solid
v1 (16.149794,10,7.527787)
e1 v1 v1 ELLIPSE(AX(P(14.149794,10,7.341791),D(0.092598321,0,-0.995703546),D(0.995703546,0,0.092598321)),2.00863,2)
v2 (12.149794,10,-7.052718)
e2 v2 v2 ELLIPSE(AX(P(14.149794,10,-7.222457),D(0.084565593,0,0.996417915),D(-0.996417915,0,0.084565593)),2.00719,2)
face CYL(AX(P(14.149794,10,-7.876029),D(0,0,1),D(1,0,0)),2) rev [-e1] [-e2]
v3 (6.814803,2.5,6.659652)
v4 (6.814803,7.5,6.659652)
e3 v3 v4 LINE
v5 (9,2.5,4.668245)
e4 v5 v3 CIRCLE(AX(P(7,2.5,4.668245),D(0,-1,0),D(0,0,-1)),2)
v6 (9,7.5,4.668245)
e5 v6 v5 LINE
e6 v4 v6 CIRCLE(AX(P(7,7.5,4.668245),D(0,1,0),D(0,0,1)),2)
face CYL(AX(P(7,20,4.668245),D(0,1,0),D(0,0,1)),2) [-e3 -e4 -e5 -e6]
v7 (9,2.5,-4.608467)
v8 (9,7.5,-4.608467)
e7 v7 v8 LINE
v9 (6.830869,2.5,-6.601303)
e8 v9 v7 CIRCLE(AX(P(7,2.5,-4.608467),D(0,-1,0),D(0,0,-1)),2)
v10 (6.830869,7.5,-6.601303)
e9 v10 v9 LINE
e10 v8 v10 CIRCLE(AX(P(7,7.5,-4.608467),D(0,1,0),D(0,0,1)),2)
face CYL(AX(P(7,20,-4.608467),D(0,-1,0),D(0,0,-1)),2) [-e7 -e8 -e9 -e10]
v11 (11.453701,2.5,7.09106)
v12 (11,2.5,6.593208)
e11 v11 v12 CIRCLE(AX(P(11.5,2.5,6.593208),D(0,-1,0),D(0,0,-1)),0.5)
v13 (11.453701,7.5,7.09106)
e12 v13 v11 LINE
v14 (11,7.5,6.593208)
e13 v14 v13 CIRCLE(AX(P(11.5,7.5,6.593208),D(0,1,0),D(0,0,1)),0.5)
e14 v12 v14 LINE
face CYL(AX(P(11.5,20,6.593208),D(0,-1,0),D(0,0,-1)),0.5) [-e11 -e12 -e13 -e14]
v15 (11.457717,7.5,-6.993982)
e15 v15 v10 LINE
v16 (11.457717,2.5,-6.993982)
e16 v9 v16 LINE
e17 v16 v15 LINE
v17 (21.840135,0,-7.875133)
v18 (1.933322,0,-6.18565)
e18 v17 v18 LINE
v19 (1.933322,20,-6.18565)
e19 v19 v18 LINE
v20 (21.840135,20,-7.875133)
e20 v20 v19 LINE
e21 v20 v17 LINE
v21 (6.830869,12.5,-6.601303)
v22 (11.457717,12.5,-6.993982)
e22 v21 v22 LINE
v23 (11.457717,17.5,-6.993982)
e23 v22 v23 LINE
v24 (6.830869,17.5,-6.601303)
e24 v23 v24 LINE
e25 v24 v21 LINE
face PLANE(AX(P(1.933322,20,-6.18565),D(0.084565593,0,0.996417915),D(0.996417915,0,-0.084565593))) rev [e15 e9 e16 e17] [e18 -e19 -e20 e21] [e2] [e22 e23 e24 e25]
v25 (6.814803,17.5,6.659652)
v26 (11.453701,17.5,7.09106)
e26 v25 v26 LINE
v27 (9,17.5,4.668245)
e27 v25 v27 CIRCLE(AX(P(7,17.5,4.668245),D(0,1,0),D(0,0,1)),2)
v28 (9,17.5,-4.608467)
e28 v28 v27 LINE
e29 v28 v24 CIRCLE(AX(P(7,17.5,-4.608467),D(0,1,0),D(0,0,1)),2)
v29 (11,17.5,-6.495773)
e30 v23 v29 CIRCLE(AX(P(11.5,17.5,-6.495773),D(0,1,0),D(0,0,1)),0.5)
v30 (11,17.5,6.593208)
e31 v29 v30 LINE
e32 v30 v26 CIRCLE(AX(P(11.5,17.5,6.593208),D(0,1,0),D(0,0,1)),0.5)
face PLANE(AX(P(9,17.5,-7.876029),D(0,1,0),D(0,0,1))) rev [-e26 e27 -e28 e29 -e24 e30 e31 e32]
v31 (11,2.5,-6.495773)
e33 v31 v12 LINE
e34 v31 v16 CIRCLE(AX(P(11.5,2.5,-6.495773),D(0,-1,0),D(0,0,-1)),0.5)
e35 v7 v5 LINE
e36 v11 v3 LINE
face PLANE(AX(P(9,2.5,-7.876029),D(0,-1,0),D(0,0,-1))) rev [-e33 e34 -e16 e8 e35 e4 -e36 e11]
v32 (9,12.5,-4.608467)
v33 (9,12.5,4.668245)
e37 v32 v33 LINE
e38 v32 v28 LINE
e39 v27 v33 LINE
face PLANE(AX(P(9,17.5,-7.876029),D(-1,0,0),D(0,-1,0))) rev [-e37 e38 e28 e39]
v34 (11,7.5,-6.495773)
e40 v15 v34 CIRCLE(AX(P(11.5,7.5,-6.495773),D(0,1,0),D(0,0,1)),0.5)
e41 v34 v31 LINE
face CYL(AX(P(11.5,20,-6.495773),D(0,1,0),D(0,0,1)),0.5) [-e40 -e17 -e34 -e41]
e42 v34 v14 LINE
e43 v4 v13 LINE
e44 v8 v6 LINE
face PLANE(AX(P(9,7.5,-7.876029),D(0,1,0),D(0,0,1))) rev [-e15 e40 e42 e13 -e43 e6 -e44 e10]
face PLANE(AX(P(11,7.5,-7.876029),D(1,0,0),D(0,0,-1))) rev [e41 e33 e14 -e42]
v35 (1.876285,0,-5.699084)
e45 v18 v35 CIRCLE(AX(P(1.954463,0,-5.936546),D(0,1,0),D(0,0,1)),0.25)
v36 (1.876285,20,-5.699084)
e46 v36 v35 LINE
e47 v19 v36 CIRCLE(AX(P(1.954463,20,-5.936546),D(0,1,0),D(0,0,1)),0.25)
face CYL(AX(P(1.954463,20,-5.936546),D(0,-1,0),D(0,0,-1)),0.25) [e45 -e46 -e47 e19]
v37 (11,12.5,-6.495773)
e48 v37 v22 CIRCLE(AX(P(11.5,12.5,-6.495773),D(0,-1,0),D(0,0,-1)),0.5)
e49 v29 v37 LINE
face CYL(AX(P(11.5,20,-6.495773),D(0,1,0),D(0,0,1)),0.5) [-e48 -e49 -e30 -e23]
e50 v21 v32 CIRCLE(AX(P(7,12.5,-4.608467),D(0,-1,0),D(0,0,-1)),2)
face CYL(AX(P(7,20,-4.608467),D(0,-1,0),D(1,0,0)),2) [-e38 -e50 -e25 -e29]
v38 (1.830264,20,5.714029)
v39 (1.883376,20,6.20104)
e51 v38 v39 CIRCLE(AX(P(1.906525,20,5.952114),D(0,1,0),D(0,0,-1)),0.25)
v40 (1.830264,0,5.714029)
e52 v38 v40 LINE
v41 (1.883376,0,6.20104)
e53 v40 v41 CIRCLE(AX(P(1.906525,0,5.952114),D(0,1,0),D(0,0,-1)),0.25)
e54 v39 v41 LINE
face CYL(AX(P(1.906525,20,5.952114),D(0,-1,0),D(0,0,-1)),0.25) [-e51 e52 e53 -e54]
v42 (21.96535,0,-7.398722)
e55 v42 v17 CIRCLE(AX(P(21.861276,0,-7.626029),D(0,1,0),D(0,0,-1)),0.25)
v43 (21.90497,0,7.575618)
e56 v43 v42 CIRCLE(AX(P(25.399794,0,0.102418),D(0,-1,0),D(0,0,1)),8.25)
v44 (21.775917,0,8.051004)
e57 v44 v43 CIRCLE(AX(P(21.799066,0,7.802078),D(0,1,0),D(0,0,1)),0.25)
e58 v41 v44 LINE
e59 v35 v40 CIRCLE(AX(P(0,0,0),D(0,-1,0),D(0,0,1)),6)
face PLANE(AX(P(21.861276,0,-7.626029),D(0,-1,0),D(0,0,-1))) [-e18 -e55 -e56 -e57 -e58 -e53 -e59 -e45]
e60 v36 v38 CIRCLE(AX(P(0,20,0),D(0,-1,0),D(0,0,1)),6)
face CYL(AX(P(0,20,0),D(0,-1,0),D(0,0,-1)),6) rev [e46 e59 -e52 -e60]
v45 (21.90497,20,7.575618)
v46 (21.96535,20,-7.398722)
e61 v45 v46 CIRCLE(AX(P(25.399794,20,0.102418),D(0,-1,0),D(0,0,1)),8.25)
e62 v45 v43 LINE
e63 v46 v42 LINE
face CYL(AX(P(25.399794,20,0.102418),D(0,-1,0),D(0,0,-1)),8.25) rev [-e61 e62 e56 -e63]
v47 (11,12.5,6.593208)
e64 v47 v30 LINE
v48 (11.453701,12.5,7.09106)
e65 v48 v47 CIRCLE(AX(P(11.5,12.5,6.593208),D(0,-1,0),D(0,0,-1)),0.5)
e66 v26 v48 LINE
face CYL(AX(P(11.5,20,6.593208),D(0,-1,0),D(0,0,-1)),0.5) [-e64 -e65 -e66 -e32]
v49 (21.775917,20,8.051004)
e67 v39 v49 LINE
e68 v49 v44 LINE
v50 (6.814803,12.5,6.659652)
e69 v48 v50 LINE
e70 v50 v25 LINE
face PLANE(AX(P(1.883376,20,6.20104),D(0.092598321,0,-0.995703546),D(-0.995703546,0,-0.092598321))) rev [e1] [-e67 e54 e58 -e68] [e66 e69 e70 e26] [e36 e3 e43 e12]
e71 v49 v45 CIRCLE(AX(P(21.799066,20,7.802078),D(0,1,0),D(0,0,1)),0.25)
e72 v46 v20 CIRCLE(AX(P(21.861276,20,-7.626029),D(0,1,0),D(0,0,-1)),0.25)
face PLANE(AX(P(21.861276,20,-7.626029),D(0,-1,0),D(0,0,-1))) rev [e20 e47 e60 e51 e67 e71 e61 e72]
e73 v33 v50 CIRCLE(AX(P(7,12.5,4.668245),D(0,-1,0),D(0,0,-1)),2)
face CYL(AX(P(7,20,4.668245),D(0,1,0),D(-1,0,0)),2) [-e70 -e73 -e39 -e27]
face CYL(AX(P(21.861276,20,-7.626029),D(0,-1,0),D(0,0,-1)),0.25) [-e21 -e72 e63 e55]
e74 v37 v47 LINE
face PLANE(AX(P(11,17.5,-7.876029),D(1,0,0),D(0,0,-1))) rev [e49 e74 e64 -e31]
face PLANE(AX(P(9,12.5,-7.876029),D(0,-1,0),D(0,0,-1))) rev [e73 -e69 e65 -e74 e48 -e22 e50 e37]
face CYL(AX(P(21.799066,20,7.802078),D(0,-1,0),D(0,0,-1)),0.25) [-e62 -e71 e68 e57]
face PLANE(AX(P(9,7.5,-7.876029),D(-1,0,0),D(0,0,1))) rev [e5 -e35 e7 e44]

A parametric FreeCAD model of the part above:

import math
import FreeCAD as App
import Part
import Sketcher


def edges_at(feature, points):
    """Names of the edges that pass closest to the given points."""
    edges = feature.Shape.Edges
    near = lambda p: min(range(len(edges)), key=lambda i: edges[i].distToShape(Part.Vertex(*p))[0])
    return sorted({f"Edge{near(p) + 1}" for p in points})


def add_polygon(sketch, points):
    """Adds a closed chain of lines whose ends are joined by coincident constraints."""
    first, n = sketch.GeometryCount, len(points)
    for a, b in zip(points, points[1:] + points[:1]):
        sketch.addGeometry(Part.LineSegment(App.Vector(*a, 0), App.Vector(*b, 0)), False)
    for i in range(n):
        sketch.addConstraint(Sketcher.Constraint("Coincident", first + i, 2, first + (i + 1) % n, 1))

doc = App.newDocument("Part")
params = doc.addObject("Spreadsheet::Sheet", "Params")
for row, (alias, value) in enumerate([
    ("sketch1_radius", "6 mm"),
    ("sketch1_radius2", "0.25 mm"),
    ("sketch1_radius3", "0.25 mm"),
    ("sketch1_radius4", "0.25 mm"),
    ("sketch1_radius5", "8.25 mm"),
    ("pad1_length", "20 mm"),
    ("sketch2_diameter", "4 mm"),
    ("sketch2_width", "2 mm"),
    ("sketch2_height", "5 mm"),
    ("fillet_radius", "2 mm"),
    ("fillet2_radius", "0.5 mm"),
], start=1):
    params.set(f"A{row}", alias)
    params.set(f"B{row}", "=" + value)
    params.setAlias(f"B{row}", alias)

body = doc.addObject("PartDesign::Body", "Body")

# Sketch on XZ plane
sketch1 = body.newObject("Sketcher::SketchObject", "Sketch")
sketch1.AttachmentSupport = (doc.getObject("XZ_Plane"), [""])
sketch1.MapMode = "FlatFace"
sketch1.addGeometry(Part.LineSegment(App.Vector(21.840135, -7.875133, 0), App.Vector(1.933322, -6.18565, 0)), False)
sketch1.addGeometry(Part.ArcOfCircle(Part.Circle(App.Vector(1.954463, -5.936546, 0), App.Vector(0, 0, 1), 0.25), math.radians(108.222873), math.radians(265.148955)), False)
sketch1.addGeometry(Part.ArcOfCircle(Part.Circle(App.Vector(0, 0, 0), App.Vector(0, 0, 1), 6), math.radians(-71.777127), math.radians(72.239186)), False)
sketch1.addGeometry(Part.ArcOfCircle(Part.Circle(App.Vector(1.906525, 5.952114, 0), App.Vector(0, 0, 1), 0.25), math.radians(95.313104), math.radians(252.239186)), False)
sketch1.addGeometry(Part.LineSegment(App.Vector(1.883376, 6.20104, 0), App.Vector(21.775917, 8.051004, 0)), False)
sketch1.addGeometry(Part.ArcOfCircle(Part.Circle(App.Vector(21.799066, 7.802078, 0), App.Vector(0, 0, 1), 0.25), math.radians(-64.936973), math.radians(95.313104)), False)
sketch1.addGeometry(Part.ArcOfCircle(Part.Circle(App.Vector(25.399794, 0.102418, 0), App.Vector(0, 0, 1), 8.25), math.radians(115.063027), math.radians(245.399032)), False)
sketch1.addGeometry(Part.ArcOfCircle(Part.Circle(App.Vector(21.861276, -7.626029, 0), App.Vector(0, 0, 1), 0.25), math.radians(-94.851045), math.radians(65.399032)), False)
sketch1.addConstraint(Sketcher.Constraint("Coincident", 0, 2, 1, 2))
sketch1.addConstraint(Sketcher.Constraint("Coincident", 1, 1, 2, 1))
sketch1.addConstraint(Sketcher.Constraint("Coincident", 2, 2, 3, 2))
sketch1.addConstraint(Sketcher.Constraint("Coincident", 3, 1, 4, 1))
sketch1.addConstraint(Sketcher.Constraint("Coincident", 4, 2, 5, 2))
sketch1.addConstraint(Sketcher.Constraint("Coincident", 5, 1, 6, 1))
sketch1.addConstraint(Sketcher.Constraint("Coincident", 6, 2, 7, 2))
sketch1.addConstraint(Sketcher.Constraint("Coincident", 7, 1, 0, 1))
sketch1.addConstraint(Sketcher.Constraint("Coincident", 2, 3, -1, 1))
sketch1.addConstraint(Sketcher.Constraint("Radius", 2, 6.0))
sketch1.addConstraint(Sketcher.Constraint("Radius", 1, 0.25))
sketch1.addConstraint(Sketcher.Constraint("Radius", 3, 0.25))
sketch1.addConstraint(Sketcher.Constraint("Radius", 5, 0.25))
sketch1.addConstraint(Sketcher.Constraint("Radius", 6, 8.25))
sketch1.addConstraint(Sketcher.Constraint("Radius", 7, 0.25))
sketch1.addConstraint(Sketcher.Constraint("DistanceX", 2, 2, 1, 3, 0.124199))
sketch1.addConstraint(Sketcher.Constraint("DistanceY", 6, 3, 5, 1, 7.473199))
sketch1.addConstraint(Sketcher.Constraint("DistanceY", 6, 2, 5, 3, 15.2008))
sketch1.addConstraint(Sketcher.Constraint("DistanceY", -1, 1, 5, 3, 7.802078))
sketch1.addConstraint(Sketcher.Constraint("DistanceY", -1, 1, 6, 3, 0.102418))
sketch1.addConstraint(Sketcher.Constraint("DistanceY", 7, 3, -1, 1, 7.626029))
sketch1.addConstraint(Sketcher.Constraint("DistanceX", -1, 1, 0, 2, 1.933322))
sketch1.addConstraint(Sketcher.Constraint("DistanceY", 0, 2, -1, 1, 6.18565))
sketch1.addConstraint(Sketcher.Constraint("DistanceY", -1, 1, 3, 1, 6.20104))
sketch1.addConstraint(Sketcher.Constraint("DistanceX", -1, 1, 5, 1, 21.90497))
sketch1.addConstraint(Sketcher.Constraint("DistanceX", 3, 3, 1, 3, 0.047938))
sketch1.addConstraint(Sketcher.Constraint("DistanceX", 1, 1, 1, 3, 0.078179))
sketch1.addConstraint(Sketcher.Constraint("DistanceX", 4, 2, 5, 3, 0.02315))
sketch1.addConstraint(Sketcher.Constraint("DistanceX", 7, 1, 7, 3, 0.021141))
sketch1.setExpression("Constraints[9]", "Params.sketch1_radius")
sketch1.setExpression("Constraints[10]", "Params.sketch1_radius2")
sketch1.setExpression("Constraints[11]", "Params.sketch1_radius3")
sketch1.setExpression("Constraints[12]", "Params.sketch1_radius4")
sketch1.setExpression("Constraints[13]", "Params.sketch1_radius5")
pad1 = body.newObject("PartDesign::Pad", "Pad")
pad1.Profile = sketch1
pad1.setExpression("Length", "Params.pad1_length")
pad1.Reversed = True

# Sketch on XY plane
sketch2 = body.newObject("Sketcher::SketchObject", "Sketch001")
sketch2.AttachmentSupport = (doc.getObject("XY_Plane"), [""])
sketch2.MapMode = "FlatFace"
sketch2.addGeometry(Part.Circle(App.Vector(14.149794, 10, 0), App.Vector(0, 0, 1), 2), False)  # 0
add_polygon(sketch2, [(9, 17.5), (9, 12.5), (11, 12.5), (11, 17.5)])  # lines 1-4
add_polygon(sketch2, [(9, 7.5), (9, 2.5), (11, 2.5), (11, 7.5)])  # lines 5-8
sketch2.addConstraint(Sketcher.Constraint("Vertical", 1))
sketch2.addConstraint(Sketcher.Constraint("Horizontal", 2))
sketch2.addConstraint(Sketcher.Constraint("Vertical", 3))
sketch2.addConstraint(Sketcher.Constraint("Horizontal", 4))
sketch2.addConstraint(Sketcher.Constraint("Vertical", 5))
sketch2.addConstraint(Sketcher.Constraint("Horizontal", 6))
sketch2.addConstraint(Sketcher.Constraint("Vertical", 7))
sketch2.addConstraint(Sketcher.Constraint("Horizontal", 8))
sketch2.addConstraint(Sketcher.Constraint("Vertical", 4, 2, 5, 2))
sketch2.addConstraint(Sketcher.Constraint("Vertical", 3, 2, 6, 2))
sketch2.addConstraint(Sketcher.Constraint("Equal", 3, 5))
sketch2.addConstraint(Sketcher.Constraint("Diameter", 0, 4.0))
sketch2.addConstraint(Sketcher.Constraint("DistanceX", 2, 1, 2, 2, 2.0))
sketch2.addConstraint(Sketcher.Constraint("DistanceY", 1, 2, 1, 1, 5.0))
sketch2.addConstraint(Sketcher.Constraint("DistanceY", -1, 1, 0, 3, 10.0))
sketch2.addConstraint(Sketcher.Constraint("DistanceX", -1, 1, 1, 2, 9.0))
sketch2.addConstraint(Sketcher.Constraint("DistanceY", 5, 2, 1, 2, 10.0))
sketch2.addConstraint(Sketcher.Constraint("DistanceY", -1, 1, 1, 2, 12.5))
sketch2.addConstraint(Sketcher.Constraint("DistanceX", -1, 1, 0, 3, 14.149794))
sketch2.setExpression("Constraints[19]", "Params.sketch2_diameter")
sketch2.setExpression("Constraints[20]", "Params.sketch2_width")
sketch2.setExpression("Constraints[21]", "Params.sketch2_height")
pocket1 = body.newObject("PartDesign::Pocket", "Pocket")
pocket1.Profile = sketch2
pocket1.Type = "ThroughAll"
pocket1.Midplane = True
doc.recompute()

fillet = body.newObject("PartDesign::Fillet", "Fillet")
fillet.Base = (pocket1, edges_at(pocket1, [
    (9, 5, 6.863),
    (9, 15, 6.863),
    (9, 15, -6.785),
    (9, 5, -6.785),
]))
fillet.setExpression("Radius", "Params.fillet_radius")
doc.recompute()

fillet2 = body.newObject("PartDesign::Fillet", "Fillet001")
fillet2.Base = (fillet, edges_at(fillet, [
    (11, 5, 7.049),
    (11, 15, 7.049),
    (11, 15, -6.955),
    (11, 5, -6.955),
]))
fillet2.setExpression("Radius", "Params.fillet2_radius")

doc.recompute()
